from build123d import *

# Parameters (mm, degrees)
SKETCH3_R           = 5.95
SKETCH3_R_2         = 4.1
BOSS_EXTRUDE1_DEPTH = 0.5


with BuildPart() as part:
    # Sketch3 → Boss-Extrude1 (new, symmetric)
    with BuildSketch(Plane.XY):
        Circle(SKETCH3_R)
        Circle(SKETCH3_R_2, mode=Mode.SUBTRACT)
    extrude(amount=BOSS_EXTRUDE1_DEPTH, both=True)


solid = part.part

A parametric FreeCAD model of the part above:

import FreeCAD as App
import Part
import Sketcher

V = App.Vector
Q = App.Units.Quantity

doc = App.newDocument("Part")
body = doc.addObject("PartDesign::Body", "Body")

sketch1 = body.newObject("Sketcher::SketchObject", "Sketch")
sketch1.AttachmentSupport = (doc.getObject("XY_Plane"), [""])
sketch1.MapMode = "FlatFace"
sketch1.addGeometry(Part.Circle(V(0, 0, 0), V(0, 0, 1), 6), False)
sketch1.addGeometry(Part.Circle(V(0, 0, 0), V(0, 0, 1), 4.1), False)
sketch1.addConstraint(Sketcher.Constraint("Coincident", 0, 3, -1, 1))
sketch1.addConstraint(Sketcher.Constraint("Coincident", 1, 3, -1, 1))
sketch1.addConstraint(Sketcher.Constraint("Diameter", 0, Q("11.9 mm")))
sketch1.addConstraint(Sketcher.Constraint("Diameter", 1, Q("8.2 mm")))
pad1 = body.newObject("PartDesign::Pad", "Pad")
pad1.Profile = sketch1
pad1.Length = 1
pad1.Midplane = True

doc.recompute()
